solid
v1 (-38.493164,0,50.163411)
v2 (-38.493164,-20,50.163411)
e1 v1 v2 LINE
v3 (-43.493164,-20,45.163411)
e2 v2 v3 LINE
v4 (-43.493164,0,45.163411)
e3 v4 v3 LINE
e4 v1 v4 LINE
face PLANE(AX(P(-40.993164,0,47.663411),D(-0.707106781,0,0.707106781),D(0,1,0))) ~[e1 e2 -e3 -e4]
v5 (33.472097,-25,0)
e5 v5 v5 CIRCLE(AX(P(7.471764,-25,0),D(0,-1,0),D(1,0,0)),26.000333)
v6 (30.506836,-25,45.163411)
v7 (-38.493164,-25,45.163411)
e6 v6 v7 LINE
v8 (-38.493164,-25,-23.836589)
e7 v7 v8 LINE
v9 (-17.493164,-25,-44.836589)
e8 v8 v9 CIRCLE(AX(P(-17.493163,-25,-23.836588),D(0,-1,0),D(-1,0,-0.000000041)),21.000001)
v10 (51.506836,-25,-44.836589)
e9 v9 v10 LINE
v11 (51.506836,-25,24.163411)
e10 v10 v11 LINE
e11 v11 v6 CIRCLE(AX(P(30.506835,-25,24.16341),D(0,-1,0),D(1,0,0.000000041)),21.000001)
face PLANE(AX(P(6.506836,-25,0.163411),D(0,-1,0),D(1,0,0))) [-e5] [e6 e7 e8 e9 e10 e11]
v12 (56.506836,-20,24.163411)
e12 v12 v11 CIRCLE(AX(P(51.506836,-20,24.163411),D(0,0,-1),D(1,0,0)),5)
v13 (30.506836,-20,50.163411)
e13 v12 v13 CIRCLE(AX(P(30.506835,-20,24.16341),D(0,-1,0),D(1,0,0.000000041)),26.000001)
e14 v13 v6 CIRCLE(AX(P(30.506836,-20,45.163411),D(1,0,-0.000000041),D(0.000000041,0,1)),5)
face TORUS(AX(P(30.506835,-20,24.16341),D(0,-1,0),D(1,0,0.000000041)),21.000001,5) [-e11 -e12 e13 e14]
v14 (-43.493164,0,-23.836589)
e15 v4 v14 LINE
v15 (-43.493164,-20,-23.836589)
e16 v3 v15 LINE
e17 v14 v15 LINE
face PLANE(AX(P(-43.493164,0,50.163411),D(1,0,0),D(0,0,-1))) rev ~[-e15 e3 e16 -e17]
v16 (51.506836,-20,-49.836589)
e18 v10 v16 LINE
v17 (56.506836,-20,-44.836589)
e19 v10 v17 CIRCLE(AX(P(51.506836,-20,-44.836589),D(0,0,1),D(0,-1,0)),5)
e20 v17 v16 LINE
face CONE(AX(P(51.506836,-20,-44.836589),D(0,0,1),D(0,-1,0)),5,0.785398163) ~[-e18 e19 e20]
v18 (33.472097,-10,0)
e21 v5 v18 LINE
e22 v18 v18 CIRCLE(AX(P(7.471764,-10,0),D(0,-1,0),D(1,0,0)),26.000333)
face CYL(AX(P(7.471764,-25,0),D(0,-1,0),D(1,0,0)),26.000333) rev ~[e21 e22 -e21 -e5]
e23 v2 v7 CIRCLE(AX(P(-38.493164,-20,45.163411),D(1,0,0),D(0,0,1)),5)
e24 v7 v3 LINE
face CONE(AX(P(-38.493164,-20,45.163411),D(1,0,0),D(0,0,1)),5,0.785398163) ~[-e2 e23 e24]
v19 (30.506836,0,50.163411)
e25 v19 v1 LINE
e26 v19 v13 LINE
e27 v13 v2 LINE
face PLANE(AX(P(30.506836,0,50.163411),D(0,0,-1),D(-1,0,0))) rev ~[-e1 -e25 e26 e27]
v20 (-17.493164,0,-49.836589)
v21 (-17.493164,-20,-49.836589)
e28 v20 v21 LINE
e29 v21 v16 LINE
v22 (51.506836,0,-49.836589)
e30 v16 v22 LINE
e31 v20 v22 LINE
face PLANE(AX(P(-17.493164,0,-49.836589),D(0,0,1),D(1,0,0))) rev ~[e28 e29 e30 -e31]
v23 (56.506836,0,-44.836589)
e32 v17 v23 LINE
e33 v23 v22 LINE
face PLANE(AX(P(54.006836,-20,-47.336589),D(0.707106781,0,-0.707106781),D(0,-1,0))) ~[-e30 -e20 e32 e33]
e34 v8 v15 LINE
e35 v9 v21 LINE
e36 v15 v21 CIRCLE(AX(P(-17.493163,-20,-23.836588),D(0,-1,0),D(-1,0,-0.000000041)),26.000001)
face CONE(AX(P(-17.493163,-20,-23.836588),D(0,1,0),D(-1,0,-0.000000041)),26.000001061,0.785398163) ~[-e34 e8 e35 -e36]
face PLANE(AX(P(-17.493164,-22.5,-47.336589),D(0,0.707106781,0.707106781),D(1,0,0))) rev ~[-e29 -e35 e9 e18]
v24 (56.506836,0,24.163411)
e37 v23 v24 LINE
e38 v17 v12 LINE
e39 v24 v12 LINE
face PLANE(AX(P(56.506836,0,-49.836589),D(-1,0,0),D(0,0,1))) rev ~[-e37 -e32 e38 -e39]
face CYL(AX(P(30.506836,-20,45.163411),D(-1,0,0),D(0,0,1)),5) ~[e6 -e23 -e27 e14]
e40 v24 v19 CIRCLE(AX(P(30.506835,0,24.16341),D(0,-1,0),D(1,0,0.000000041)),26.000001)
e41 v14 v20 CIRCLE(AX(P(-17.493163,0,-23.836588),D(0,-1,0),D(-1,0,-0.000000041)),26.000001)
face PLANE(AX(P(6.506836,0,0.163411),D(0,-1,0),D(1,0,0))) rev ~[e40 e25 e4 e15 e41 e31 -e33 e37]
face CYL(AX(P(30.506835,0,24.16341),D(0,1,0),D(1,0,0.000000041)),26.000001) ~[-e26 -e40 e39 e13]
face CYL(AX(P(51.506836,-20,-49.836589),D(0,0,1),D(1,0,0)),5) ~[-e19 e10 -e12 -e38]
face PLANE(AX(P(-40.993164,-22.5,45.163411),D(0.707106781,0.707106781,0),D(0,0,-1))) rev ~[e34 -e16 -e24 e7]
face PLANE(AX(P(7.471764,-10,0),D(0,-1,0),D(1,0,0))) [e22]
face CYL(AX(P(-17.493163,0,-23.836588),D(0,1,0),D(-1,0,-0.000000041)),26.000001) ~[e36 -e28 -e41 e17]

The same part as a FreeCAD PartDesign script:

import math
import FreeCAD as App
import Part
import Sketcher


def edges_at(feature, points):
    """Names of the edges that pass closest to the given points."""
    edges = feature.Shape.Edges
    near = lambda p: min(range(len(edges)), key=lambda i: edges[i].distToShape(Part.Vertex(*p))[0])
    return sorted({f"Edge{near(p) + 1}" for p in points})

doc = App.newDocument("Part")
params = doc.addObject("Spreadsheet::Sheet", "Params")
for row, (alias, value) in enumerate([
    ("sketch1_radius", "26.000001 mm"),
    ("sketch1_width", "74 mm"),
    ("pad1_length", "25 mm"),
    ("fillet_radius", "5 mm"),
    ("chamfer_size", "5 mm"),
    ("pocket1_length", "15 mm"),
], start=1):
    params.set(f"A{row}", alias)
    params.set(f"B{row}", "=" + value)
    params.setAlias(f"B{row}", alias)

body = doc.addObject("PartDesign::Body", "Body")

# Sketch on XZ plane
sketch1 = body.newObject("Sketcher::SketchObject", "Sketch")
sketch1.AttachmentSupport = (doc.getObject("XZ_Plane"), [""])
sketch1.MapMode = "FlatFace"
sketch1.addGeometry(Part.LineSegment(App.Vector(30.506836, 50.163411, 0), App.Vector(-43.493164, 50.163411, 0)), False)
sketch1.addGeometry(Part.LineSegment(App.Vector(-43.493164, 50.163411, 0), App.Vector(-43.493164, -23.836589, 0)), False)
sketch1.addGeometry(Part.ArcOfCircle(Part.Circle(App.Vector(-17.493163, -23.836588, 0), App.Vector(0, 0, 1), 26.000001), math.radians(-179.999998), math.radians(-90.000002)), False)
sketch1.addGeometry(Part.LineSegment(App.Vector(-17.493164, -49.836589, 0), App.Vector(56.506836, -49.836589, 0)), False)
sketch1.addGeometry(Part.LineSegment(App.Vector(56.506836, -49.836589, 0), App.Vector(56.506836, 24.163411, 0)), False)
sketch1.addGeometry(Part.ArcOfCircle(Part.Circle(App.Vector(30.506835, 24.16341, 0), App.Vector(0, 0, 1), 26.000001), math.radians(0.000002), math.radians(89.999998)), False)
sketch1.addConstraint(Sketcher.Constraint("Coincident", 0, 2, 1, 1))
sketch1.addConstraint(Sketcher.Constraint("Tangent", 1, 2, 2, 1))
sketch1.addConstraint(Sketcher.Constraint("Tangent", 2, 2, 3, 1))
sketch1.addConstraint(Sketcher.Constraint("Coincident", 3, 2, 4, 1))
sketch1.addConstraint(Sketcher.Constraint("Tangent", 4, 2, 5, 1))
sketch1.addConstraint(Sketcher.Constraint("Tangent", 5, 2, 0, 1))
sketch1.addConstraint(Sketcher.Constraint("Horizontal", 0))
sketch1.addConstraint(Sketcher.Constraint("Vertical", 1))
sketch1.addConstraint(Sketcher.Constraint("Horizontal", 3))
sketch1.addConstraint(Sketcher.Constraint("Vertical", 4))
sketch1.addConstraint(Sketcher.Constraint("Equal", 2, 5))
sketch1.addConstraint(Sketcher.Constraint("Equal", 3, 1))
sketch1.addConstraint(Sketcher.Constraint("Radius", 2, 26.000001))
sketch1.addConstraint(Sketcher.Constraint("DistanceX", 0, 2, 0, 1, 74.0))
sketch1.addConstraint(Sketcher.Constraint("DistanceY", -1, 1, 5, 3, 24.16341))
sketch1.addConstraint(Sketcher.Constraint("DistanceX", 2, 3, -1, 1, 17.493163))
sketch1.setExpression("Constraints[12]", "Params.sketch1_radius")
sketch1.setExpression("Constraints[13]", "Params.sketch1_width")
pad1 = body.newObject("PartDesign::Pad", "Pad")
pad1.Profile = sketch1
pad1.setExpression("Length", "Params.pad1_length")
doc.recompute()

fillet = body.newObject("PartDesign::Fillet", "Fillet")
fillet.Base = (pad1, edges_at(pad1, [(-6.493, -25, 50.163)]))
fillet.setExpression("Radius", "Params.fillet_radius")
doc.recompute()

chamfer = body.newObject("PartDesign::Chamfer", "Chamfer")
chamfer.Base = (fillet, edges_at(fillet, [(-43.493, -10, 50.163)]))
chamfer.setExpression("Size", "Params.chamfer_size")

# Sketch on XZ plane
sketch2 = body.newObject("Sketcher::SketchObject", "Sketch001")
sketch2.AttachmentSupport = (doc.getObject("XZ_Plane"), [""])
sketch2.MapMode = "FlatFace"
sketch2.AttachmentOffset = App.Placement(App.Vector(0, 0, 25), App.Rotation())
sketch2.addGeometry(Part.Circle(App.Vector(7.471764, 0, 0), App.Vector(0, 0, 1), 26.000333), False)
sketch2.addConstraint(Sketcher.Constraint("PointOnObject", 0, 3, -1))
sketch2.addConstraint(Sketcher.Constraint("Diameter", 0, 52.000666))
sketch2.addConstraint(Sketcher.Constraint("DistanceX", -1, 1, 0, 3, 7.471764))
pocket1 = body.newObject("PartDesign::Pocket", "Pocket")
pocket1.Profile = sketch2
pocket1.setExpression("Length", "Params.pocket1_length")

doc.recompute()
